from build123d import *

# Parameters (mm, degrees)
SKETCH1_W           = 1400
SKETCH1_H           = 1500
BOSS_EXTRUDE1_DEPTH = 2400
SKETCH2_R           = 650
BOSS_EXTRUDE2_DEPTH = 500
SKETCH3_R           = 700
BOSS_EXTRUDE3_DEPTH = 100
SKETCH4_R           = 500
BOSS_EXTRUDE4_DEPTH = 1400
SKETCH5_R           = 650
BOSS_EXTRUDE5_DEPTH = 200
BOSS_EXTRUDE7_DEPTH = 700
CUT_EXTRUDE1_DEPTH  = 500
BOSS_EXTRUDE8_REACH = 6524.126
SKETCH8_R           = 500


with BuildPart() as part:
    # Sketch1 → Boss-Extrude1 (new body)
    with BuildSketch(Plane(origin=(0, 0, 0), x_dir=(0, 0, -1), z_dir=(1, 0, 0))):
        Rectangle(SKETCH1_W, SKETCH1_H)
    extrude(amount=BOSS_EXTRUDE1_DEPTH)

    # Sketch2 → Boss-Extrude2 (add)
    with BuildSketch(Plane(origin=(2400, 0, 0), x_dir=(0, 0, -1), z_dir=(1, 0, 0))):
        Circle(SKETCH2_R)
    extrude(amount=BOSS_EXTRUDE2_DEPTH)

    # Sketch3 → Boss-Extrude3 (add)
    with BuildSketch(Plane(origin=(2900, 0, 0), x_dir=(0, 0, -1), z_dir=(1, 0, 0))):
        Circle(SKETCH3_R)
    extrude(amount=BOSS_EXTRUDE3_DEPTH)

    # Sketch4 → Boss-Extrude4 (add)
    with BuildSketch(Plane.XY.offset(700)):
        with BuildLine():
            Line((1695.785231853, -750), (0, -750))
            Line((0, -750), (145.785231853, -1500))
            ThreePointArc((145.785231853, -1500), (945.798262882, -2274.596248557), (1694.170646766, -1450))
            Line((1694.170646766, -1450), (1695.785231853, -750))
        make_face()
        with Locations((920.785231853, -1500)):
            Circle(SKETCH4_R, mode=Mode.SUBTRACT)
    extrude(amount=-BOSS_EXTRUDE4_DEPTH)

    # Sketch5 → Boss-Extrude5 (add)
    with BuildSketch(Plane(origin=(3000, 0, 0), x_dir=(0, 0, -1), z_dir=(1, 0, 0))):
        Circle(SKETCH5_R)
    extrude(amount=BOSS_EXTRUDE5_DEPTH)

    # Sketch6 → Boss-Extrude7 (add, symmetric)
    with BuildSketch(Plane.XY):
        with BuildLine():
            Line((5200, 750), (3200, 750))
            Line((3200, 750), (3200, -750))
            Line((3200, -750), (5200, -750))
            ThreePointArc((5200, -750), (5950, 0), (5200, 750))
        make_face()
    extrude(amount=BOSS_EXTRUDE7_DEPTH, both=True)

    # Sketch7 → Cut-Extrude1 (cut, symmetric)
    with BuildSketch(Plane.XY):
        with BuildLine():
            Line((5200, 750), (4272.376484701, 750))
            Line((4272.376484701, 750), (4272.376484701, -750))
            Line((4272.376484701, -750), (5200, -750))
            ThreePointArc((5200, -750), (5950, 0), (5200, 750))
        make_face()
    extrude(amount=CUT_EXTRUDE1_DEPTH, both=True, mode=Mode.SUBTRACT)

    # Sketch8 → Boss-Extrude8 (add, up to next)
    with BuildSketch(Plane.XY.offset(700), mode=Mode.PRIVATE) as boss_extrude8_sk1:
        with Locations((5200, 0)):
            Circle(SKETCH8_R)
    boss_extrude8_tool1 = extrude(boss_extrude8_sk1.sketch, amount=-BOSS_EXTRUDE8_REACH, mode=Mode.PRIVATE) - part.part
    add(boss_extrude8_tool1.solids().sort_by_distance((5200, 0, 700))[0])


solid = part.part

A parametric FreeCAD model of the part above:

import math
import FreeCAD as App
import Part
import Sketcher
from FreeCAD import Vector
Q = App.Units.Quantity

doc = App.newDocument("Part")
body = doc.addObject("PartDesign::Body", "Body")

# Sketch on YZ plane
sketch1 = doc.addObject("Sketcher::SketchObject", "Sketch")
body.addObject(sketch1)
sketch1.AttachmentSupport = (doc.YZ_Plane, [""])
sketch1.MapMode = "FlatFace"
sketch1.addGeometry([
    Part.LineSegment(Vector(750, 700, 0), Vector(-750, 700, 0)),
    Part.LineSegment(Vector(-750, 700, 0), Vector(-750, -700, 0)),
    Part.LineSegment(Vector(-750, -700, 0), Vector(750, -700, 0)),
    Part.LineSegment(Vector(750, -700, 0), Vector(750, 700, 0)),
], False)
sketch1.addConstraint([
    Sketcher.Constraint("Coincident", 0, 2, 1, 1),
    Sketcher.Constraint("Coincident", 1, 2, 2, 1),
    Sketcher.Constraint("Coincident", 2, 2, 3, 1),
    Sketcher.Constraint("Coincident", 3, 2, 0, 1),
    Sketcher.Constraint("Horizontal", 0),
    Sketcher.Constraint("Vertical", 1),
    Sketcher.Constraint("Horizontal", 2),
    Sketcher.Constraint("Vertical", 3),
    Sketcher.Constraint("Symmetric", 0, 2, 2, 2, -1, 1),
    Sketcher.Constraint("DistanceX", 0, 2, 0, 1, Q("1500 mm")),
    Sketcher.Constraint("DistanceY", 1, 2, 1, 1, Q("1400 mm")),
])
pad1 = doc.addObject("PartDesign::Pad", "Pad")
body.addObject(pad1)
pad1.Profile = sketch1
pad1.Length = 2400

# Sketch on YZ plane
sketch2 = doc.addObject("Sketcher::SketchObject", "Sketch001")
body.addObject(sketch2)
sketch2.AttachmentSupport = (doc.YZ_Plane, [""])
sketch2.MapMode = "FlatFace"
sketch2.AttachmentOffset = App.Placement(Vector(0, 0, 2400), App.Rotation())
sketch2.addGeometry(Part.Circle(Vector(0, 0, 0), Vector(0, 0, 1), 650), False)
sketch2.addConstraint([
    Sketcher.Constraint("Coincident", 0, 3, -1, 1),
    Sketcher.Constraint("Diameter", 0, Q("1300 mm")),
])
pad2 = doc.addObject("PartDesign::Pad", "Pad001")
body.addObject(pad2)
pad2.Profile = sketch2
pad2.Length = 500

# Sketch on YZ plane
sketch3 = doc.addObject("Sketcher::SketchObject", "Sketch002")
body.addObject(sketch3)
sketch3.AttachmentSupport = (doc.YZ_Plane, [""])
sketch3.MapMode = "FlatFace"
sketch3.AttachmentOffset = App.Placement(Vector(0, 0, 2900), App.Rotation())
sketch3.addGeometry(Part.Circle(Vector(0, 0, 0), Vector(0, 0, 1), 700), False)
sketch3.addConstraint([
    Sketcher.Constraint("Coincident", 0, 3, -1, 1),
    Sketcher.Constraint("Diameter", 0, Q("1400 mm")),
])
pad3 = doc.addObject("PartDesign::Pad", "Pad002")
body.addObject(pad3)
pad3.Profile = sketch3
pad3.Length = 100

# Sketch on XY plane
sketch4 = doc.addObject("Sketcher::SketchObject", "Sketch003")
body.addObject(sketch4)
sketch4.AttachmentSupport = (doc.XY_Plane, [""])
sketch4.MapMode = "FlatFace"
sketch4.AttachmentOffset = App.Placement(Vector(0, 0, 700), App.Rotation())
sketch4.addGeometry([
    Part.LineSegment(Vector(1696, -750, 0), Vector(0, -750, 0)),  # 0
    Part.LineSegment(Vector(0, -750, 0), Vector(146, -1500, 0)),  # 1
    Part.ArcOfCircle(Part.Circle(Vector(921, -1500, 0), Vector(0, 0, 1), 775), math.radians(180), math.radians(364)),  # 2
    Part.LineSegment(Vector(1694, -1450, 0), Vector(1696, -750, 0)),  # 3
    Part.Circle(Vector(921, -1500, 0), Vector(0, 0, 1), 500),  # 4
], False)
sketch4.addConstraint([
    Sketcher.Constraint("Coincident", 0, 2, 1, 1),
    Sketcher.Constraint("Coincident", 1, 2, 2, 1),
    Sketcher.Constraint("Coincident", 2, 2, 3, 1),
    Sketcher.Constraint("Coincident", 3, 2, 0, 1),
    Sketcher.Constraint("Horizontal", 0),
    Sketcher.Constraint("Coincident", 4, 3, 2, 3),
    Sketcher.Constraint("PointOnObject", 0, 2, -2),
    Sketcher.Constraint("Horizontal", 4, 3, 1, 2),
    Sketcher.Constraint("Diameter", 4, Q("1000 mm")),
    Sketcher.Constraint("Radius", 2, Q("775 mm")),
    Sketcher.Constraint("Angle", 1, Q("-79 deg")),
    Sketcher.Constraint("DistanceY", 2, 3, -1, 1, Q("1500 mm")),
    Sketcher.Constraint("DistanceY", 0, 2, -1, 1, Q("750 mm")),
    Sketcher.Constraint("DistanceX", 2, 3, 3, 2, Q("775 mm")),
    Sketcher.Constraint("Distance", 3, Q("700.001862 mm")),
])
pad4 = doc.addObject("PartDesign::Pad", "Pad003")
body.addObject(pad4)
pad4.Profile = sketch4
pad4.Length = 1400
pad4.Reversed = True

# Sketch on YZ plane
sketch5 = doc.addObject("Sketcher::SketchObject", "Sketch004")
body.addObject(sketch5)
sketch5.AttachmentSupport = (doc.YZ_Plane, [""])
sketch5.MapMode = "FlatFace"
sketch5.AttachmentOffset = App.Placement(Vector(0, 0, 3000), App.Rotation())
sketch5.addGeometry(Part.Circle(Vector(0, 0, 0), Vector(0, 0, 1), 650), False)
sketch5.addConstraint([
    Sketcher.Constraint("Coincident", 0, 3, -1, 1),
    Sketcher.Constraint("Diameter", 0, Q("1300 mm")),
])
pad5 = doc.addObject("PartDesign::Pad", "Pad004")
body.addObject(pad5)
pad5.Profile = sketch5
pad5.Length = 200

# Sketch on XY plane
sketch6 = doc.addObject("Sketcher::SketchObject", "Sketch005")
body.addObject(sketch6)
sketch6.AttachmentSupport = (doc.XY_Plane, [""])
sketch6.MapMode = "FlatFace"
sketch6.addGeometry([
    Part.LineSegment(Vector(5200, 750, 0), Vector(3200, 750, 0)),
    Part.LineSegment(Vector(3200, 750, 0), Vector(3200, -750, 0)),
    Part.LineSegment(Vector(3200, -750, 0), Vector(5200, -750, 0)),
    Part.ArcOfCircle(Part.Circle(Vector(5200, 0, 0), Vector(0, 0, 1), 750), math.radians(-90), math.radians(90)),
], False)
sketch6.addConstraint([
    Sketcher.Constraint("Coincident", 0, 2, 1, 1),
    Sketcher.Constraint("Coincident", 1, 2, 2, 1),
    Sketcher.Constraint("Coincident", 2, 2, 3, 1),
    Sketcher.Constraint("Coincident", 3, 2, 0, 1),
    Sketcher.Constraint("Horizontal", 0),
    Sketcher.Constraint("Vertical", 1),
    Sketcher.Constraint("Horizontal", 2),
    Sketcher.Constraint("PointOnObject", 3, 3, -1),
    Sketcher.Constraint("Vertical", 3, 3, 2, 2),
    Sketcher.Constraint("Equal", 0, 2),
    Sketcher.Constraint("Radius", 3, Q("750 mm")),
    Sketcher.Constraint("DistanceX", 0, 2, 0, 1, Q("2000 mm")),
    Sketcher.Constraint("DistanceX", -1, 1, 3, 3, Q("5200 mm")),
])
pad6 = doc.addObject("PartDesign::Pad", "Pad005")
body.addObject(pad6)
pad6.Profile = sketch6
pad6.Length = 1400
pad6.Midplane = True

# Sketch on XY plane
sketch7 = doc.addObject("Sketcher::SketchObject", "Sketch006")
body.addObject(sketch7)
sketch7.AttachmentSupport = (doc.XY_Plane, [""])
sketch7.MapMode = "FlatFace"
sketch7.addGeometry([
    Part.LineSegment(Vector(5200, 750, 0), Vector(4272, 750, 0)),
    Part.LineSegment(Vector(4272, 750, 0), Vector(4272, -750, 0)),
    Part.LineSegment(Vector(4272, -750, 0), Vector(5200, -750, 0)),
    Part.ArcOfCircle(Part.Circle(Vector(5200, 0, 0), Vector(0, 0, 1), 750), math.radians(-90), math.radians(90)),
], False)
sketch7.addConstraint([
    Sketcher.Constraint("Coincident", 0, 2, 1, 1),
    Sketcher.Constraint("Coincident", 1, 2, 2, 1),
    Sketcher.Constraint("Tangent", 2, 2, 3, 1),
    Sketcher.Constraint("Tangent", 3, 2, 0, 1),
    Sketcher.Constraint("Horizontal", 0),
    Sketcher.Constraint("Vertical", 1),
    Sketcher.Constraint("Horizontal", 2),
    Sketcher.Constraint("PointOnObject", 3, 3, -1),
    Sketcher.Constraint("Radius", 3, Q("750 mm")),
    Sketcher.Constraint("DistanceX", -1, 1, 3, 3, Q("5200 mm")),
    Sketcher.Constraint("DistanceX", 0, 2, 0, 1, Q("927.623515 mm")),
])
pocket1 = doc.addObject("PartDesign::Pocket", "Pocket")
body.addObject(pocket1)
pocket1.Profile = sketch7
pocket1.Length = 1000
pocket1.Midplane = True

# Sketch on XY plane
sketch8 = doc.addObject("Sketcher::SketchObject", "Sketch007")
body.addObject(sketch8)
sketch8.AttachmentSupport = (doc.XY_Plane, [""])
sketch8.MapMode = "FlatFace"
sketch8.AttachmentOffset = App.Placement(Vector(0, 0, 700), App.Rotation())
sketch8.addGeometry(Part.Circle(Vector(5200, 0, 0), Vector(0, 0, 1), 500), False)
sketch8.addConstraint([
    Sketcher.Constraint("PointOnObject", 0, 3, -1),
    Sketcher.Constraint("Diameter", 0, Q("1000 mm")),
    Sketcher.Constraint("DistanceX", -1, 1, 0, 3, Q("5200 mm")),
])
pad7 = doc.addObject("PartDesign::Pad", "Pad006")
body.addObject(pad7)
pad7.Profile = sketch8
pad7.Length = 1200
pad7.Reversed = True

doc.recompute()
